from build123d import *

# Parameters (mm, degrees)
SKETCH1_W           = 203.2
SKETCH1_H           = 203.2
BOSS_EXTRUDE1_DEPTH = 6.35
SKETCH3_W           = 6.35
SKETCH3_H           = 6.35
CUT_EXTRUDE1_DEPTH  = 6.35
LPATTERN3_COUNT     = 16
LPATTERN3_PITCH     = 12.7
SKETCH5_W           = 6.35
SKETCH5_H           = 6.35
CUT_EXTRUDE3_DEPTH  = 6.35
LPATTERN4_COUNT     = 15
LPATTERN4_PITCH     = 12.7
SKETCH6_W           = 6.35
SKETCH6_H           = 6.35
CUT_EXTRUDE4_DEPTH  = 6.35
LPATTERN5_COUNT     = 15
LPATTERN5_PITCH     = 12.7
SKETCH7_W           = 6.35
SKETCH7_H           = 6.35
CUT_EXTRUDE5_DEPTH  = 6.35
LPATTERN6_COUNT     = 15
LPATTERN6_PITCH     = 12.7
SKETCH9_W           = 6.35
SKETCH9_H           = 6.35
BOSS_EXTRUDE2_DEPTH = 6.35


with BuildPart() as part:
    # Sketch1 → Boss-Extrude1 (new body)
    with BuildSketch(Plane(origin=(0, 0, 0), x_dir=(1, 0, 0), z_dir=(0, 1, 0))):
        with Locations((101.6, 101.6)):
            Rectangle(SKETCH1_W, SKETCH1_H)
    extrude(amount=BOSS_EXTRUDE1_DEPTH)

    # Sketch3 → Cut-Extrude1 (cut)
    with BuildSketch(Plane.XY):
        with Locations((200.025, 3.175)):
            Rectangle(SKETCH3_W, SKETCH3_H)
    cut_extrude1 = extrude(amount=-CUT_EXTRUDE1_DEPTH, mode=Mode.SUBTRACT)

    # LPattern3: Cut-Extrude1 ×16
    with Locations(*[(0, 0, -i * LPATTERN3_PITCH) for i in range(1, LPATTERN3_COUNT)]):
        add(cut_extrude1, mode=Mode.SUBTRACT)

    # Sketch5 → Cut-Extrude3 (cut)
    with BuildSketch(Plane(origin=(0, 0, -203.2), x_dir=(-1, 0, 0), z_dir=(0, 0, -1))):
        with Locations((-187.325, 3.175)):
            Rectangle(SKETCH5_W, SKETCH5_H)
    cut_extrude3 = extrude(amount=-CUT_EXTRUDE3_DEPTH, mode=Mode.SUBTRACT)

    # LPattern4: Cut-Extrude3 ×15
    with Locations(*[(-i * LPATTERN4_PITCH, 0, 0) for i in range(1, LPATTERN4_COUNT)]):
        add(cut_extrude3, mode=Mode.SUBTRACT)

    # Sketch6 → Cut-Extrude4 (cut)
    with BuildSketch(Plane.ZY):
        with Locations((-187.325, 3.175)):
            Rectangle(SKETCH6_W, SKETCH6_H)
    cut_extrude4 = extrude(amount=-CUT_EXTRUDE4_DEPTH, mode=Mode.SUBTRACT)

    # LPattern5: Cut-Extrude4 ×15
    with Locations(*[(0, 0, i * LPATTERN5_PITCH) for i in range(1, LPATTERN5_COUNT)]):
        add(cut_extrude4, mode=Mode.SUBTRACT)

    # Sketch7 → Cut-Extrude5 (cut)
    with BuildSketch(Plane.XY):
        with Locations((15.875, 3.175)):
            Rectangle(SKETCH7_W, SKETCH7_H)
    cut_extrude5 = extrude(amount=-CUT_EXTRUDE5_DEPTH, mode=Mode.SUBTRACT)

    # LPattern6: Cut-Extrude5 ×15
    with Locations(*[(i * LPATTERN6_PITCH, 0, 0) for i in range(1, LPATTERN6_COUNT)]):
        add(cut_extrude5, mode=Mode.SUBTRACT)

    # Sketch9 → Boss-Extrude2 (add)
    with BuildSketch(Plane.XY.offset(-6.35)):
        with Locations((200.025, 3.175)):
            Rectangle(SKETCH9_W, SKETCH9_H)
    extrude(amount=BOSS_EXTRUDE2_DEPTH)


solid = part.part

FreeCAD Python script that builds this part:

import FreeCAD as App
import Part
import Sketcher
from FreeCAD import Vector
Q = App.Units.Quantity

doc = App.newDocument("Part")
body = doc.addObject("PartDesign::Body", "Body")

sketch1 = body.newObject("Sketcher::SketchObject", "Sketch")
sketch1.AttachmentSupport = (doc.getObject("XZ_Plane"), [""])
sketch1.MapMode = "FlatFace"
sketch1.addGeometry([
    Part.LineSegment(Vector(0, -203, 0), Vector(0, 0, 0)),
    Part.LineSegment(Vector(0, 0, 0), Vector(203, 0, 0)),
    Part.LineSegment(Vector(203, 0, 0), Vector(203, -203, 0)),
    Part.LineSegment(Vector(203, -203, 0), Vector(0, -203, 0)),
], False)
sketch1.addConstraint([
    Sketcher.Constraint("Coincident", 0, 2, 1, 1),
    Sketcher.Constraint("Coincident", 1, 2, 2, 1),
    Sketcher.Constraint("Coincident", 2, 2, 3, 1),
    Sketcher.Constraint("Coincident", 3, 2, 0, 1),
    Sketcher.Constraint("Vertical", 0),
    Sketcher.Constraint("Horizontal", 1),
    Sketcher.Constraint("Vertical", 2),
    Sketcher.Constraint("Horizontal", 3),
    Sketcher.Constraint("Coincident", 0, 2, -1, 1),
    Sketcher.Constraint("Equal", 3, 0),
    Sketcher.Constraint("DistanceX", 1, 1, 1, 2, Q("8 in")),
])
pad1 = body.newObject("PartDesign::Pad", "Pad")
pad1.Profile = sketch1
pad1.Length = Q("0.25 in")
pad1.Reversed = True

sketch2 = body.newObject("Sketcher::SketchObject", "Sketch001")
sketch2.AttachmentSupport = (doc.getObject("XY_Plane"), [""])
sketch2.MapMode = "FlatFace"
sketch2.addGeometry([
    Part.LineSegment(Vector(197, 6, 0), Vector(197, 0, 0)),
    Part.LineSegment(Vector(197, 0, 0), Vector(203, 0, 0)),
    Part.LineSegment(Vector(203, 0, 0), Vector(203, 6, 0)),
    Part.LineSegment(Vector(203, 6, 0), Vector(197, 6, 0)),
], False)
sketch2.addConstraint([
    Sketcher.Constraint("Coincident", 0, 2, 1, 1),
    Sketcher.Constraint("Coincident", 1, 2, 2, 1),
    Sketcher.Constraint("Coincident", 2, 2, 3, 1),
    Sketcher.Constraint("Coincident", 3, 2, 0, 1),
    Sketcher.Constraint("Vertical", 0),
    Sketcher.Constraint("Horizontal", 1),
    Sketcher.Constraint("Vertical", 2),
    Sketcher.Constraint("Horizontal", 3),
    Sketcher.Constraint("PointOnObject", 0, 2, -1),
    Sketcher.Constraint("Equal", 3, 0),
    Sketcher.Constraint("DistanceX", -1, 1, 1, 2, Q("8 in")),
    Sketcher.Constraint("DistanceX", 1, 1, 1, 2, Q("0.25 in")),
])
pocket1 = body.newObject("PartDesign::Pocket", "Pocket")
pocket1.Profile = sketch2
pocket1.Length = Q("0.25 in")
doc.recompute()

linearpattern = body.newObject("PartDesign::LinearPattern", "LinearPattern")
linearpattern.Originals = [pocket1]
linearpattern.Direction = (doc.getObject("Z_Axis"), [""])
linearpattern.Mode = "offset"
linearpattern.Offset = Q("0.5 in")
linearpattern.Occurrences = 16
linearpattern.Reversed = True
body.Tip = linearpattern

sketch3 = body.newObject("Sketcher::SketchObject", "Sketch002")
sketch3.AttachmentSupport = (doc.getObject("XY_Plane"), [""])
sketch3.MapMode = "FlatFace"
sketch3.AttachmentOffset = App.Placement(Vector(0, 0, -8 * 25.4), App.Rotation())
sketch3.addGeometry([
    Part.LineSegment(Vector(190, 6, 0), Vector(190, 0, 0)),
    Part.LineSegment(Vector(190, 0, 0), Vector(184, 0, 0)),
    Part.LineSegment(Vector(184, 0, 0), Vector(184, 6, 0)),
    Part.LineSegment(Vector(184, 6, 0), Vector(190, 6, 0)),
], False)
sketch3.addConstraint([
    Sketcher.Constraint("Coincident", 0, 2, 1, 1),
    Sketcher.Constraint("Coincident", 1, 2, 2, 1),
    Sketcher.Constraint("Coincident", 2, 2, 3, 1),
    Sketcher.Constraint("Coincident", 3, 2, 0, 1),
    Sketcher.Constraint("Vertical", 0),
    Sketcher.Constraint("Horizontal", 1),
    Sketcher.Constraint("Vertical", 2),
    Sketcher.Constraint("Horizontal", 3),
    Sketcher.Constraint("PointOnObject", 0, 2, -1),
    Sketcher.Constraint("Equal", 3, 0),
    Sketcher.Constraint("DistanceX", 1, 2, 1, 1, Q("0.25 in")),
    Sketcher.Constraint("DistanceX", -1, 1, 0, 2, Q("7.5 in")),
])
pocket2 = body.newObject("PartDesign::Pocket", "Pocket001")
pocket2.Profile = sketch3
pocket2.Length = Q("0.25 in")
pocket2.Reversed = True
doc.recompute()

linearpattern2 = body.newObject("PartDesign::LinearPattern", "LinearPattern001")
linearpattern2.Originals = [pocket2]
linearpattern2.Direction = (doc.getObject("X_Axis"), [""])
linearpattern2.Mode = "offset"
linearpattern2.Offset = Q("0.5 in")
linearpattern2.Occurrences = 15
linearpattern2.Reversed = True
body.Tip = linearpattern2

sketch4 = body.newObject("Sketcher::SketchObject", "Sketch003")
sketch4.AttachmentSupport = (doc.getObject("YZ_Plane"), [""])
sketch4.MapMode = "FlatFace"
sketch4.addGeometry([
    Part.LineSegment(Vector(6, -190, 0), Vector(0, -190, 0)),
    Part.LineSegment(Vector(0, -190, 0), Vector(0, -184, 0)),
    Part.LineSegment(Vector(0, -184, 0), Vector(6, -184, 0)),
    Part.LineSegment(Vector(6, -184, 0), Vector(6, -190, 0)),
], False)
sketch4.addConstraint([
    Sketcher.Constraint("Coincident", 0, 2, 1, 1),
    Sketcher.Constraint("Coincident", 1, 2, 2, 1),
    Sketcher.Constraint("Coincident", 2, 2, 3, 1),
    Sketcher.Constraint("Coincident", 3, 2, 0, 1),
    Sketcher.Constraint("Horizontal", 0),
    Sketcher.Constraint("Vertical", 1),
    Sketcher.Constraint("Horizontal", 2),
    Sketcher.Constraint("Vertical", 3),
    Sketcher.Constraint("PointOnObject", 0, 2, -2),
    Sketcher.Constraint("Equal", 2, 1),
    Sketcher.Constraint("DistanceX", 0, 2, 0, 1, Q("0.25 in")),
    Sketcher.Constraint("DistanceY", 0, 2, -1, 1, Q("7.5 in")),
])
pocket3 = body.newObject("PartDesign::Pocket", "Pocket002")
pocket3.Profile = sketch4
pocket3.Length = Q("0.25 in")
pocket3.Reversed = True
doc.recompute()

linearpattern3 = body.newObject("PartDesign::LinearPattern", "LinearPattern002")
linearpattern3.Originals = [pocket3]
linearpattern3.Direction = (doc.getObject("Z_Axis"), [""])
linearpattern3.Mode = "offset"
linearpattern3.Offset = Q("0.5 in")
linearpattern3.Occurrences = 15
body.Tip = linearpattern3

sketch5 = body.newObject("Sketcher::SketchObject", "Sketch004")
sketch5.AttachmentSupport = (doc.getObject("XY_Plane"), [""])
sketch5.MapMode = "FlatFace"
sketch5.addGeometry([
    Part.LineSegment(Vector(13, 6, 0), Vector(13, 0, 0)),
    Part.LineSegment(Vector(13, 0, 0), Vector(19, 0, 0)),
    Part.LineSegment(Vector(19, 0, 0), Vector(19, 6, 0)),
    Part.LineSegment(Vector(19, 6, 0), Vector(13, 6, 0)),
], False)
sketch5.addConstraint([
    Sketcher.Constraint("Coincident", 0, 2, 1, 1),
    Sketcher.Constraint("Coincident", 1, 2, 2, 1),
    Sketcher.Constraint("Coincident", 2, 2, 3, 1),
    Sketcher.Constraint("Coincident", 3, 2, 0, 1),
    Sketcher.Constraint("Vertical", 0),
    Sketcher.Constraint("Horizontal", 1),
    Sketcher.Constraint("Vertical", 2),
    Sketcher.Constraint("Horizontal", 3),
    Sketcher.Constraint("PointOnObject", 0, 2, -1),
    Sketcher.Constraint("Equal", 3, 0),
    Sketcher.Constraint("DistanceX", 1, 1, 1, 2, Q("0.25 in")),
    Sketcher.Constraint("DistanceX", -1, 1, 0, 2, Q("0.5 in")),
])
pocket4 = body.newObject("PartDesign::Pocket", "Pocket003")
pocket4.Profile = sketch5
pocket4.Length = Q("0.25 in")
doc.recompute()

linearpattern4 = body.newObject("PartDesign::LinearPattern", "LinearPattern003")
linearpattern4.Originals = [pocket4]
linearpattern4.Direction = (doc.getObject("X_Axis"), [""])
linearpattern4.Mode = "offset"
linearpattern4.Offset = Q("0.5 in")
linearpattern4.Occurrences = 15
body.Tip = linearpattern4

sketch6 = body.newObject("Sketcher::SketchObject", "Sketch005")
sketch6.AttachmentSupport = (doc.getObject("XY_Plane"), [""])
sketch6.MapMode = "FlatFace"
sketch6.AttachmentOffset = App.Placement(Vector(0, 0, -0.25 * 25.4), App.Rotation())
sketch6.addGeometry([
    Part.LineSegment(Vector(197, 6, 0), Vector(197, 0, 0)),
    Part.LineSegment(Vector(197, 0, 0), Vector(203, 0, 0)),
    Part.LineSegment(Vector(203, 0, 0), Vector(203, 6, 0)),
    Part.LineSegment(Vector(203, 6, 0), Vector(197, 6, 0)),
], False)
sketch6.addConstraint([
    Sketcher.Constraint("Coincident", 0, 2, 1, 1),
    Sketcher.Constraint("Coincident", 1, 2, 2, 1),
    Sketcher.Constraint("Coincident", 2, 2, 3, 1),
    Sketcher.Constraint("Coincident", 3, 2, 0, 1),
    Sketcher.Constraint("Vertical", 0),
    Sketcher.Constraint("Horizontal", 1),
    Sketcher.Constraint("Vertical", 2),
    Sketcher.Constraint("Horizontal", 3),
    Sketcher.Constraint("PointOnObject", 0, 2, -1),
    Sketcher.Constraint("Equal", 3, 0),
    Sketcher.Constraint("DistanceX", -1, 1, 1, 2, Q("8 in")),
    Sketcher.Constraint("DistanceX", 1, 1, 1, 2, Q("0.25 in")),
])
pad2 = body.newObject("PartDesign::Pad", "Pad001")
pad2.Profile = sketch6
pad2.Length = Q("0.25 in")

doc.recompute()
